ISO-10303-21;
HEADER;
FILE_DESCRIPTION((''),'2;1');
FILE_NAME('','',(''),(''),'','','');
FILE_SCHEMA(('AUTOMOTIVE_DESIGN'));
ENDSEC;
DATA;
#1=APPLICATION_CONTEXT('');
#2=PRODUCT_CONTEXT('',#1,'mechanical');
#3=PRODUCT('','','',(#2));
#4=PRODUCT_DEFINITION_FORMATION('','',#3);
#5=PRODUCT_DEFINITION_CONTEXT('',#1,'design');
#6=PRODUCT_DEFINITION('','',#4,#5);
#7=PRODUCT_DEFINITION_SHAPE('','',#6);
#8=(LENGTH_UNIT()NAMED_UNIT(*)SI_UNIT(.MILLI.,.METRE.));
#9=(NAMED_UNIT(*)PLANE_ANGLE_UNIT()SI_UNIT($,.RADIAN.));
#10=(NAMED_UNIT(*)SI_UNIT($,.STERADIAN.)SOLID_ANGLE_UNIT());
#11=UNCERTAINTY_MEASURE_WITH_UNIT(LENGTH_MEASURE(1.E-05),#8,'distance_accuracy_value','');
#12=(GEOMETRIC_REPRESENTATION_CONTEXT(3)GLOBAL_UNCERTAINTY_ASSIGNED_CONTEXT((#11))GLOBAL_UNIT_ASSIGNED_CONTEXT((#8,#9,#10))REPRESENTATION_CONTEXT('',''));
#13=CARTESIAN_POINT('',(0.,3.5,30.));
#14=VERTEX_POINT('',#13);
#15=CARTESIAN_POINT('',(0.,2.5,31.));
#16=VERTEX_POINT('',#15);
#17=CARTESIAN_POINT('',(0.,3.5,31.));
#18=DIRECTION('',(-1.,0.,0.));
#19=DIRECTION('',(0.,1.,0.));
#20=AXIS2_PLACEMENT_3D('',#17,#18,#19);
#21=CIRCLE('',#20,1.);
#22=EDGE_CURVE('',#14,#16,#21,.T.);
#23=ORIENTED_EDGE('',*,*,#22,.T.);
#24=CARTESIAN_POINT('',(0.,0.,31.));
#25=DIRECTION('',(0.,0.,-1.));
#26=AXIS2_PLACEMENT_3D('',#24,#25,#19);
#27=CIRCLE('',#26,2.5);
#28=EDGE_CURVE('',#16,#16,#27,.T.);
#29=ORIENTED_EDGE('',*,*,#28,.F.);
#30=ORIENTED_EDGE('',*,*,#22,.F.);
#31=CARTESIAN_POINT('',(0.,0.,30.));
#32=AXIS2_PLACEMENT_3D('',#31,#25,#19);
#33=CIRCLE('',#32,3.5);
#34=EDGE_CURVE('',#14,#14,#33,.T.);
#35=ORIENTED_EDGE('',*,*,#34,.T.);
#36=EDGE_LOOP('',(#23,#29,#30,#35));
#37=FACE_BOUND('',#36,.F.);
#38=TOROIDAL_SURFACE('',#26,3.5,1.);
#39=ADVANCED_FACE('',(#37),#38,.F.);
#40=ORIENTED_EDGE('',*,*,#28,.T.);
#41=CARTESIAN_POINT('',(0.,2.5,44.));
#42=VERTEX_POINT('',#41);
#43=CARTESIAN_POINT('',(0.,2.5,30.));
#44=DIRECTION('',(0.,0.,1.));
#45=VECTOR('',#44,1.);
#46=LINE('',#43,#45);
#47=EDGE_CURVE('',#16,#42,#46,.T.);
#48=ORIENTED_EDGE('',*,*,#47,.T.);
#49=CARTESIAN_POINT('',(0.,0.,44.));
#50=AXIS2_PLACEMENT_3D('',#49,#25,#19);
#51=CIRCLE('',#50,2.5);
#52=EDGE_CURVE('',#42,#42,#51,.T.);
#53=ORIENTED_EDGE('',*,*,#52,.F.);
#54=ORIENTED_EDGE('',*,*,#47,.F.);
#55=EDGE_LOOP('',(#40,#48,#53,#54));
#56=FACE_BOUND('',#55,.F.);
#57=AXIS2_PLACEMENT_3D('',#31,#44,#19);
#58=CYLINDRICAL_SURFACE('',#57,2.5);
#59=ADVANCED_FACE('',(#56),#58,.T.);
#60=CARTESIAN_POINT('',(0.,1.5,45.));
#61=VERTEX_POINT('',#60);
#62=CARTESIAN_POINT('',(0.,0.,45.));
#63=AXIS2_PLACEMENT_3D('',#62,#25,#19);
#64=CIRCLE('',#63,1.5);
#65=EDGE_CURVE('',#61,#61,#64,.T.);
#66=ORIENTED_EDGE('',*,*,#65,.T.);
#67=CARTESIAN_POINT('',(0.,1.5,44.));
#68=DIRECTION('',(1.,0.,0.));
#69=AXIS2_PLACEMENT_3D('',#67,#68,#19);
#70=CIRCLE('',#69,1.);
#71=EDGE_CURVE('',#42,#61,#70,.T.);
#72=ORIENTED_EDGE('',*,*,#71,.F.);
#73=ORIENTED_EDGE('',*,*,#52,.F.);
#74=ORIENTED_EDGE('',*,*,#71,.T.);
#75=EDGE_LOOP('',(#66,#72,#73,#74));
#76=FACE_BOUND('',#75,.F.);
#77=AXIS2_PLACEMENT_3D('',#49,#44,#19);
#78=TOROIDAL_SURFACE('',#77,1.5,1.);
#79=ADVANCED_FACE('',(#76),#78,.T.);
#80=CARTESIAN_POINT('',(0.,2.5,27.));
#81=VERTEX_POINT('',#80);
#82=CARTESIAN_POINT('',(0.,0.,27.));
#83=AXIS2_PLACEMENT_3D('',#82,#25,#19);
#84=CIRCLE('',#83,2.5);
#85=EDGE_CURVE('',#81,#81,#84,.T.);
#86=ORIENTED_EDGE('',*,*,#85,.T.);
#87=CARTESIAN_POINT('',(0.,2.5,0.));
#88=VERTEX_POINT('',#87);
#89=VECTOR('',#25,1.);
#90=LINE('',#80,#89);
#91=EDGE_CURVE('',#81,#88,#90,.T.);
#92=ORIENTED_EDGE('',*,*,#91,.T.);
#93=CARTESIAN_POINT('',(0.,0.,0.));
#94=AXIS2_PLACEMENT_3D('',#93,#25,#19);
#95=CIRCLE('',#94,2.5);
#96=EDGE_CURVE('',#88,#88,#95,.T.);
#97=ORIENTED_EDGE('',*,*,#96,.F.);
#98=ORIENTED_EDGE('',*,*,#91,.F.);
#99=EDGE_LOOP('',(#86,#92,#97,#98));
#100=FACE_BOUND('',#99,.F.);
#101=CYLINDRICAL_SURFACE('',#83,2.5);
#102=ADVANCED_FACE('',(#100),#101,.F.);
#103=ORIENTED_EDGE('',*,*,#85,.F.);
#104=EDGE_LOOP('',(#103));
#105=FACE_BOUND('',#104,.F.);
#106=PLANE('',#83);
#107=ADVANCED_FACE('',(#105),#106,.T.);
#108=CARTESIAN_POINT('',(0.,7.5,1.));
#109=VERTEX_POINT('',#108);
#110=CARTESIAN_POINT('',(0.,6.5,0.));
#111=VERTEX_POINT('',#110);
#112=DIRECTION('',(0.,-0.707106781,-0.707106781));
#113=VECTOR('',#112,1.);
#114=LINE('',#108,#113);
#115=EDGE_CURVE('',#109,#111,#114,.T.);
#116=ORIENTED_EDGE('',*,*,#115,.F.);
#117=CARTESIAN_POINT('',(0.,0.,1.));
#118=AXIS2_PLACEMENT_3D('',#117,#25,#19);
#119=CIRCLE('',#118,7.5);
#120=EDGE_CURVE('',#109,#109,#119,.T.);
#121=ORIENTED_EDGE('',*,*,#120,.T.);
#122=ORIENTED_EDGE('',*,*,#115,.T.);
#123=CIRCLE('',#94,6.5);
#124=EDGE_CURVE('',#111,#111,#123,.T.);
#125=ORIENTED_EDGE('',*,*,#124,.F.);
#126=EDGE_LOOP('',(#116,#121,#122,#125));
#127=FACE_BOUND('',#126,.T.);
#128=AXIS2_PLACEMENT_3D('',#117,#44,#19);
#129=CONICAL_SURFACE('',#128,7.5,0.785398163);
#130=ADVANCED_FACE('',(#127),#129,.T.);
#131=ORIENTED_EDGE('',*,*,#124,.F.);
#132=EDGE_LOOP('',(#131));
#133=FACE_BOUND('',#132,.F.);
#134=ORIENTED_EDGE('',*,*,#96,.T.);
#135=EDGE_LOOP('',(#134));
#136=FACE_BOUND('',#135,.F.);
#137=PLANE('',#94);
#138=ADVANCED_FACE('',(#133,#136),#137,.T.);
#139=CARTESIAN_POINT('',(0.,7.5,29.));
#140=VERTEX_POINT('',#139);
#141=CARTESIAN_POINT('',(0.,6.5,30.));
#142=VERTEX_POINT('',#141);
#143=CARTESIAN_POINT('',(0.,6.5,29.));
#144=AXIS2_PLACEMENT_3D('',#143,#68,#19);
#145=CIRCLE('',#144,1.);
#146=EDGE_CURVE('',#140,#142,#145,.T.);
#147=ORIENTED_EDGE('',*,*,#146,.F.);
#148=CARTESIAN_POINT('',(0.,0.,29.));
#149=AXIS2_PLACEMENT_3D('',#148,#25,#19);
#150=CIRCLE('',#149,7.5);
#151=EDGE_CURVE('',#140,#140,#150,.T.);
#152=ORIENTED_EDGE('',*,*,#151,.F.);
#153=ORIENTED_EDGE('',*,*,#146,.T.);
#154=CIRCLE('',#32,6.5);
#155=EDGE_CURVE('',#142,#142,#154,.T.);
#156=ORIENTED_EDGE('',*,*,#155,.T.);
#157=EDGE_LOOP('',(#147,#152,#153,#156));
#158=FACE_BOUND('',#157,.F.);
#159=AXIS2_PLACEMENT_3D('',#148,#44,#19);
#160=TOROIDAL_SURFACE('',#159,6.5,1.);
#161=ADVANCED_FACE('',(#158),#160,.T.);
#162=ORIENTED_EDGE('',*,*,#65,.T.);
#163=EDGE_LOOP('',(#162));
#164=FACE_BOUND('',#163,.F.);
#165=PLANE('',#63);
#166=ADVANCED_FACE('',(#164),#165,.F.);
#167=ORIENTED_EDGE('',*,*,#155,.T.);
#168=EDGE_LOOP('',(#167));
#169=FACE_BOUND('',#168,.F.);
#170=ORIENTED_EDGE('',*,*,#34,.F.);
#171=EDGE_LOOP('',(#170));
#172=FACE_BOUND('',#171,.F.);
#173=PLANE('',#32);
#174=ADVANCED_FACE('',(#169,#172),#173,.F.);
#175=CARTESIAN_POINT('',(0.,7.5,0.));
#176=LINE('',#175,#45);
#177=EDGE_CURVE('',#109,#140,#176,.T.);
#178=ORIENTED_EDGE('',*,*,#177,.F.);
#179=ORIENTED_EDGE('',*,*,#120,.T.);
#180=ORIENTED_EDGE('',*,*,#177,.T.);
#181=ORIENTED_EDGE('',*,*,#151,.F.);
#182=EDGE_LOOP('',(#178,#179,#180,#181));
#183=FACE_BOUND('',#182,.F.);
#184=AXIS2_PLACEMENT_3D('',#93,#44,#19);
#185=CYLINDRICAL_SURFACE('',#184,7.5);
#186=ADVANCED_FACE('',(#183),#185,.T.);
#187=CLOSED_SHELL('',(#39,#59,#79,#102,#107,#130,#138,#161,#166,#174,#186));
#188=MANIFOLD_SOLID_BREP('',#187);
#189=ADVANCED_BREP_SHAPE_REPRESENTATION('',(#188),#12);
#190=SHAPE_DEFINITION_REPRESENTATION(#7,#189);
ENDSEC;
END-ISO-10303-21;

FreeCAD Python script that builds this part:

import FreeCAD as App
import Part
import Sketcher

V = App.Vector
Q = App.Units.Quantity


def edges_at(feature, points):
    """Names of the edges that pass closest to the given points."""
    edges = feature.Shape.Edges
    near = lambda p: min(range(len(edges)), key=lambda i: edges[i].distToShape(Part.Vertex(*p))[0])
    return sorted({f"Edge{near(p) + 1}" for p in points})


def add_polygon(sketch, points):
    """Adds a closed chain of lines whose ends are joined by coincident constraints."""
    first, n = sketch.GeometryCount, len(points)
    for a, b in zip(points, points[1:] + points[:1]):
        sketch.addGeometry(Part.LineSegment(App.Vector(*a, 0), App.Vector(*b, 0)), False)
    for i in range(n):
        sketch.addConstraint(Sketcher.Constraint("Coincident", first + i, 2, first + (i + 1) % n, 1))

doc = App.newDocument("Part")
params = doc.addObject("Spreadsheet::Sheet", "Params")
for row, (alias, value) in enumerate([
    ("sketch1_width", "5 mm"),
    ("sketch1_height", "27 mm"),
    ("sketch1_height2", "30 mm"),
    ("sketch1_height3", "15 mm"),
    ("sketch1_width2", "2.5 mm"),
    ("revolution_angle", "360 deg"),
    ("fillet_radius", "1 mm"),
    ("chamfer_size", "1 mm"),
], start=1):
    params.set(f"A{row}", alias)
    params.set(f"B{row}", "=" + value)
    params.setAlias(f"B{row}", alias)

body = doc.addObject("PartDesign::Body", "Body")

sketch1 = body.newObject("Sketcher::SketchObject", "Sketch")
sketch1.AttachmentSupport = (doc.getObject("YZ_Plane"), [""])
sketch1.MapMode = "FlatFace"
add_polygon(sketch1, [(2.5, 27), (2.5, 0), (7.5, 0), (7.5, 30), (2.5, 30), (2.5, 45), (0, 45), (0, 27)])
sketch1.addConstraint([
    Sketcher.Constraint("Vertical", 0),
    Sketcher.Constraint("Horizontal", 1),
    Sketcher.Constraint("Vertical", 2),
    Sketcher.Constraint("Horizontal", 3),
    Sketcher.Constraint("Vertical", 4),
    Sketcher.Constraint("Horizontal", 5),
    Sketcher.Constraint("Vertical", 6),
    Sketcher.Constraint("Horizontal", 7),
    Sketcher.Constraint("PointOnObject", 0, 2, -1),
    Sketcher.Constraint("PointOnObject", 5, 2, -2),
    Sketcher.Constraint("Vertical", 0, 2, 3, 2),
    Sketcher.Constraint("DistanceX", 1, 1, 1, 2, Q("5 mm")),
    Sketcher.Constraint("DistanceY", 0, 2, 0, 1, Q("27 mm")),
    Sketcher.Constraint("DistanceY", 2, 1, 2, 2, Q("30 mm")),
    Sketcher.Constraint("DistanceY", 4, 1, 4, 2, Q("15 mm")),
    Sketcher.Constraint("DistanceX", 5, 2, 5, 1, Q("2.5 mm")),
])
sketch1.setExpression("Constraints[19]", "Params.sketch1_width")
sketch1.setExpression("Constraints[20]", "Params.sketch1_height")
sketch1.setExpression("Constraints[21]", "Params.sketch1_height2")
sketch1.setExpression("Constraints[22]", "Params.sketch1_height3")
sketch1.setExpression("Constraints[23]", "Params.sketch1_width2")
revolution = body.newObject("PartDesign::Revolution", "Revolution")
revolution.Profile = sketch1
revolution.ReferenceAxis = (sketch1, ["V_Axis"])
revolution.setExpression("Angle", "Params.revolution_angle")
doc.recompute()

fillet = body.newObject("PartDesign::Fillet", "Fillet")
fillet.Base = (revolution, edges_at(revolution, [(0, -2.5, 45), (0, -2.5, 30), (0, -7.5, 30)]))
fillet.setExpression("Radius", "Params.fillet_radius")
doc.recompute()

chamfer = body.newObject("PartDesign::Chamfer", "Chamfer")
chamfer.Base = (fillet, edges_at(fillet, [(0, -7.5, 0)]))
chamfer.setExpression("Size", "Params.chamfer_size")

doc.recompute()
